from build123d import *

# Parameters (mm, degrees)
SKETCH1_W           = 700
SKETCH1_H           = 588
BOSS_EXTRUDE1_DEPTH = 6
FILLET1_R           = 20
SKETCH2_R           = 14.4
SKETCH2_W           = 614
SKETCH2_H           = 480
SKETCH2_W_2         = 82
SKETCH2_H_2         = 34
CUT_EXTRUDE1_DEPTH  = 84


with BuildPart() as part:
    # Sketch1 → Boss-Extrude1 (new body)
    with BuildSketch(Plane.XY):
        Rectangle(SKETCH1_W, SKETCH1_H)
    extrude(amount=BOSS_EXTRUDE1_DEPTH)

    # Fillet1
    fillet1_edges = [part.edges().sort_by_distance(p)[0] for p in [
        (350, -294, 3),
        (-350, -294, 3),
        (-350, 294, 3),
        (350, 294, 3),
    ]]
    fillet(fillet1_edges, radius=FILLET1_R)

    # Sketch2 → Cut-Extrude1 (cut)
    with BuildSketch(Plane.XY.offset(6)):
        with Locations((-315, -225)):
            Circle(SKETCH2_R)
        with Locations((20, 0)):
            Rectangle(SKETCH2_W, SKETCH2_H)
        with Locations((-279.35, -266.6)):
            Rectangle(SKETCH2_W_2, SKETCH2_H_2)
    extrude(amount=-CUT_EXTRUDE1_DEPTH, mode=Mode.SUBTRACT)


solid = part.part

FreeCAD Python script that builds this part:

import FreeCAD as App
import Part
import Sketcher
from FreeCAD import Vector


def edges_at(feature, points):
    """Names of the edges that pass closest to the given points."""
    edges = feature.Shape.Edges
    near = lambda p: min(range(len(edges)), key=lambda i: edges[i].distToShape(Part.Vertex(*p))[0])
    return sorted({f"Edge{near(p) + 1}" for p in points})

doc = App.newDocument("Part")
body = doc.addObject("PartDesign::Body", "Body")

sketch1 = body.newObject("Sketcher::SketchObject", "Sketch")
sketch1.AttachmentSupport = (doc.getObject("XY_Plane"), [""])
sketch1.MapMode = "FlatFace"
sketch1.addGeometry(Part.LineSegment(Vector(-350, 294, 0), Vector(-350, -294, 0)), False)
sketch1.addGeometry(Part.LineSegment(Vector(-350, -294, 0), Vector(350, -294, 0)), False)
sketch1.addGeometry(Part.LineSegment(Vector(350, -294, 0), Vector(350, 294, 0)), False)
sketch1.addGeometry(Part.LineSegment(Vector(350, 294, 0), Vector(-350, 294, 0)), False)
sketch1.addConstraint(Sketcher.Constraint("Coincident", 0, 2, 1, 1))
sketch1.addConstraint(Sketcher.Constraint("Coincident", 1, 2, 2, 1))
sketch1.addConstraint(Sketcher.Constraint("Coincident", 2, 2, 3, 1))
sketch1.addConstraint(Sketcher.Constraint("Coincident", 3, 2, 0, 1))
sketch1.addConstraint(Sketcher.Constraint("Vertical", 0))
sketch1.addConstraint(Sketcher.Constraint("Horizontal", 1))
sketch1.addConstraint(Sketcher.Constraint("Vertical", 2))
sketch1.addConstraint(Sketcher.Constraint("Horizontal", 3))
sketch1.addConstraint(Sketcher.Constraint("Symmetric", 0, 2, 2, 2, -1, 1))
sketch1.addConstraint(Sketcher.Constraint("DistanceX", 1, 1, 1, 2, 700.0))
sketch1.addConstraint(Sketcher.Constraint("DistanceY", 0, 2, 0, 1, 588.0))
pad1 = body.newObject("PartDesign::Pad", "Pad")
pad1.Profile = sketch1
pad1.Length = 6
doc.recompute()

fillet = body.newObject("PartDesign::Fillet", "Fillet")
fillet.Base = (pad1, edges_at(pad1, [
    (350, -294, 3),
    (-350, -294, 3),
    (-350, 294, 3),
    (350, 294, 3),
]))
fillet.Radius = 20

sketch2 = body.newObject("Sketcher::SketchObject", "Sketch001")
sketch2.AttachmentSupport = (doc.getObject("XY_Plane"), [""])
sketch2.MapMode = "FlatFace"
sketch2.AttachmentOffset = App.Placement(Vector(0, 0, 6), App.Rotation())
sketch2.addGeometry(Part.Circle(Vector(-315, -225, 0), Vector(0, 0, 1), 14), False)
sketch2.addGeometry(Part.LineSegment(Vector(-287, 240, 0), Vector(-287, -240, 0)), False)
sketch2.addGeometry(Part.LineSegment(Vector(-287, -240, 0), Vector(327, -240, 0)), False)
sketch2.addGeometry(Part.LineSegment(Vector(327, -240, 0), Vector(327, 240, 0)), False)
sketch2.addGeometry(Part.LineSegment(Vector(327, 240, 0), Vector(-287, 240, 0)), False)
sketch2.addGeometry(Part.LineSegment(Vector(-320, -250, 0), Vector(-320, -284, 0)), False)
sketch2.addGeometry(Part.LineSegment(Vector(-320, -284, 0), Vector(-238, -284, 0)), False)
sketch2.addGeometry(Part.LineSegment(Vector(-238, -284, 0), Vector(-238, -250, 0)), False)
sketch2.addGeometry(Part.LineSegment(Vector(-238, -250, 0), Vector(-320, -250, 0)), False)
sketch2.addConstraint(Sketcher.Constraint("Coincident", 1, 2, 2, 1))
sketch2.addConstraint(Sketcher.Constraint("Coincident", 2, 2, 3, 1))
sketch2.addConstraint(Sketcher.Constraint("Coincident", 3, 2, 4, 1))
sketch2.addConstraint(Sketcher.Constraint("Coincident", 4, 2, 1, 1))
sketch2.addConstraint(Sketcher.Constraint("Coincident", 5, 2, 6, 1))
sketch2.addConstraint(Sketcher.Constraint("Coincident", 6, 2, 7, 1))
sketch2.addConstraint(Sketcher.Constraint("Coincident", 7, 2, 8, 1))
sketch2.addConstraint(Sketcher.Constraint("Coincident", 8, 2, 5, 1))
sketch2.addConstraint(Sketcher.Constraint("Vertical", 1))
sketch2.addConstraint(Sketcher.Constraint("Horizontal", 2))
sketch2.addConstraint(Sketcher.Constraint("Vertical", 3))
sketch2.addConstraint(Sketcher.Constraint("Horizontal", 4))
sketch2.addConstraint(Sketcher.Constraint("Vertical", 5))
sketch2.addConstraint(Sketcher.Constraint("Horizontal", 6))
sketch2.addConstraint(Sketcher.Constraint("Vertical", 7))
sketch2.addConstraint(Sketcher.Constraint("Horizontal", 8))
sketch2.addConstraint(Sketcher.Constraint("Diameter", 0, 28.8))
sketch2.addConstraint(Sketcher.Constraint("DistanceX", 2, 1, 2, 2, 614.0))
sketch2.addConstraint(Sketcher.Constraint("DistanceX", 6, 1, 6, 2, 82.0))
sketch2.addConstraint(Sketcher.Constraint("DistanceY", 1, 2, 1, 1, 480.0))
sketch2.addConstraint(Sketcher.Constraint("DistanceY", 5, 2, 5, 1, 34.0))
sketch2.addConstraint(Sketcher.Constraint("DistanceX", 0, 3, -1, 1, 315.0))
sketch2.addConstraint(Sketcher.Constraint("DistanceY", 0, 3, -1, 1, 225.0))
sketch2.addConstraint(Sketcher.Constraint("DistanceX", 1, 2, -1, 1, 287.0))
sketch2.addConstraint(Sketcher.Constraint("DistanceY", 1, 2, -1, 1, 240.0))
sketch2.addConstraint(Sketcher.Constraint("DistanceY", 5, 2, -1, 1, 283.6))
sketch2.addConstraint(Sketcher.Constraint("DistanceX", 5, 2, -1, 1, 320.35))
pocket1 = body.newObject("PartDesign::Pocket", "Pocket")
pocket1.Profile = sketch2
pocket1.Length = 84

doc.recompute()
